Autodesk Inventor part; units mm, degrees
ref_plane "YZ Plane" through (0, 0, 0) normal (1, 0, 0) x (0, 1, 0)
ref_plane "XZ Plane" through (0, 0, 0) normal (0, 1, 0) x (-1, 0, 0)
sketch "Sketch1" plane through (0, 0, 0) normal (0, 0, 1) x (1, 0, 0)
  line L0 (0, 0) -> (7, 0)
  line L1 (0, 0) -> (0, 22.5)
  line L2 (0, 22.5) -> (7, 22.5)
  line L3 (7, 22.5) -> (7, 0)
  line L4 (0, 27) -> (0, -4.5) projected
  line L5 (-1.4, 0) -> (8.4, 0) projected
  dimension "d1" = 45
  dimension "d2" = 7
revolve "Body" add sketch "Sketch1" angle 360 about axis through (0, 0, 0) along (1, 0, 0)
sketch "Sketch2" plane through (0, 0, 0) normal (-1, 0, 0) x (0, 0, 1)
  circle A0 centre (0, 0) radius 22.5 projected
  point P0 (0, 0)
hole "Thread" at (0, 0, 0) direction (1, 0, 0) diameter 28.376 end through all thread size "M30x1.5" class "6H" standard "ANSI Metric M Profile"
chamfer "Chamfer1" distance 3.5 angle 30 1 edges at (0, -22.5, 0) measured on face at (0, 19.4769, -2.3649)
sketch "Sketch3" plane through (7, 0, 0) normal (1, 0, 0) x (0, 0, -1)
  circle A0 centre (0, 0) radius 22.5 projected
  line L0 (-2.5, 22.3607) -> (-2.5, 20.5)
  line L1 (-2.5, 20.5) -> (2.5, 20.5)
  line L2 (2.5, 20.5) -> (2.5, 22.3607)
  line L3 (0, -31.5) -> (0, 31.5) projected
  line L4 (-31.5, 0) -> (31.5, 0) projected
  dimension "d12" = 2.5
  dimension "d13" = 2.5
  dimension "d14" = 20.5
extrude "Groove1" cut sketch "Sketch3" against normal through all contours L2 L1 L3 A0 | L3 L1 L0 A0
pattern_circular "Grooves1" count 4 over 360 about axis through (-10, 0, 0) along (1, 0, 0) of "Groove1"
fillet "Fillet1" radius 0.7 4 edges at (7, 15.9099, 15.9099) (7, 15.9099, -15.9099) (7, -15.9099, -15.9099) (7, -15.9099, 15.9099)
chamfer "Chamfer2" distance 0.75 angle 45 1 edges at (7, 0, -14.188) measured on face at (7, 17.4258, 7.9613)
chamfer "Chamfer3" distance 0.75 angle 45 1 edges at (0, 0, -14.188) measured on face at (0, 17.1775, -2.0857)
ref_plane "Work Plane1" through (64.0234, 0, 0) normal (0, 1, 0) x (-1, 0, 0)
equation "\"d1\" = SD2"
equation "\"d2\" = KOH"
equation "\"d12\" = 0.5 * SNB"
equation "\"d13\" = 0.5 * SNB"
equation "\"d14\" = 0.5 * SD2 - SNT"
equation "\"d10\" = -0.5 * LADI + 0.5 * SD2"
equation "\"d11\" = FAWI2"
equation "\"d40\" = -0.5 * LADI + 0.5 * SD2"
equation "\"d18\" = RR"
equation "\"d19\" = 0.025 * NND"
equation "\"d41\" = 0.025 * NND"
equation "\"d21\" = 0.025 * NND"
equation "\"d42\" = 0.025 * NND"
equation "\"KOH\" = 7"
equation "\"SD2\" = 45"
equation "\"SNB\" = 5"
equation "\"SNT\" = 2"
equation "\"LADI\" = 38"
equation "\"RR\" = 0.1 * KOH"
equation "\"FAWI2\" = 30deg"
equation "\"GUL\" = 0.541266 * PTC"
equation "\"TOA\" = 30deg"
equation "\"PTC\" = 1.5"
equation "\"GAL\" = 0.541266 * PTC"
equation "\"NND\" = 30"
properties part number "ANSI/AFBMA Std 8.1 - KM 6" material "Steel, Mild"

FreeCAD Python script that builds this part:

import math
import FreeCAD as App
import Part
import Sketcher
Q = App.Units.Quantity


def edges_at(feature, points):
    """Names of the edges that pass closest to the given points."""
    edges = feature.Shape.Edges
    near = lambda p: min(range(len(edges)), key=lambda i: edges[i].distToShape(Part.Vertex(*p))[0])
    return sorted({f"Edge{near(p) + 1}" for p in points})

doc = App.newDocument("Part")
body = doc.addObject("PartDesign::Body", "Body")

# Sketch on XY plane
sketch1 = body.newObject("Sketcher::SketchObject", "Sketch")
sketch1.AttachmentSupport = (doc.getObject("XY_Plane"), [""])
sketch1.MapMode = "FlatFace"
sketch1.addGeometry(Part.LineSegment(App.Vector(0, 22.5, 0), App.Vector(0, 0, 0)), False)
sketch1.addGeometry(Part.LineSegment(App.Vector(0, 0, 0), App.Vector(7, 0, 0)), False)
sketch1.addGeometry(Part.LineSegment(App.Vector(7, 0, 0), App.Vector(7, 22.5, 0)), False)
sketch1.addGeometry(Part.LineSegment(App.Vector(7, 22.5, 0), App.Vector(0, 22.5, 0)), False)
sketch1.addConstraint(Sketcher.Constraint("Coincident", 0, 2, 1, 1))
sketch1.addConstraint(Sketcher.Constraint("Coincident", 1, 2, 2, 1))
sketch1.addConstraint(Sketcher.Constraint("Coincident", 2, 2, 3, 1))
sketch1.addConstraint(Sketcher.Constraint("Coincident", 3, 2, 0, 1))
sketch1.addConstraint(Sketcher.Constraint("Vertical", 0))
sketch1.addConstraint(Sketcher.Constraint("Horizontal", 1))
sketch1.addConstraint(Sketcher.Constraint("Vertical", 2))
sketch1.addConstraint(Sketcher.Constraint("Horizontal", 3))
sketch1.addConstraint(Sketcher.Constraint("Coincident", 0, 2, -1, 1))
sketch1.addConstraint(Sketcher.Constraint("DistanceX", 1, 1, 1, 2, Q("7 mm")))
sketch1.addConstraint(Sketcher.Constraint("DistanceY", 0, 2, 0, 1, Q("22.5 mm")))
revolution = body.newObject("PartDesign::Revolution", "Revolution")
revolution.Profile = sketch1
revolution.ReferenceAxis = (sketch1, ["H_Axis"])
revolution.Angle = 360

# Sketch on YZ plane
sketch2 = body.newObject("Sketcher::SketchObject", "Sketch001")
sketch2.AttachmentSupport = (doc.getObject("YZ_Plane"), [""])
sketch2.MapMode = "FlatFace"
sketch2.addGeometry(Part.Circle(App.Vector(0, 0, 0), App.Vector(0, 0, 1), 14.188), False)
sketch2.addConstraint(Sketcher.Constraint("Coincident", 0, 3, -1, 1))
sketch2.addConstraint(Sketcher.Constraint("Diameter", 0, Q("28.376 mm")))
doc.recompute()
hole = body.newObject("PartDesign::Hole", "Hole")
hole.Profile = sketch2
hole.ThreadType = "None"
hole.Diameter = 28.376
hole.DepthType = "ThroughAll"
hole.Reversed = True
doc.recompute()

chamfer = body.newObject("PartDesign::Chamfer", "Chamfer")
chamfer.Base = (hole, edges_at(hole, [(0, -22.5, 0)]))
chamfer.ChamferType = "Distance and Angle"
chamfer.Size = 3.5
chamfer.Angle = 30

# Sketch on YZ plane
sketch3 = body.newObject("Sketcher::SketchObject", "Sketch002")
sketch3.AttachmentSupport = (doc.getObject("YZ_Plane"), [""])
sketch3.MapMode = "FlatFace"
sketch3.AttachmentOffset = App.Placement(App.Vector(0, 0, 7), App.Rotation())
sketch3.addGeometry(Part.LineSegment(App.Vector(20.5, -2.5, 0), App.Vector(22.3607, -2.5, 0)), False)
sketch3.addGeometry(Part.ArcOfCircle(Part.Circle(App.Vector(0, 0, 0), App.Vector(0, 0, 1), 22.5), math.radians(-6.379364), math.radians(6.379364)), False)
sketch3.addGeometry(Part.LineSegment(App.Vector(22.3607, 2.5, 0), App.Vector(20.5, 2.5, 0)), False)
sketch3.addGeometry(Part.LineSegment(App.Vector(20.5, 2.5, 0), App.Vector(20.5, -2.5, 0)), False)
sketch3.addConstraint(Sketcher.Constraint("Coincident", 0, 2, 1, 1))
sketch3.addConstraint(Sketcher.Constraint("Coincident", 1, 2, 2, 1))
sketch3.addConstraint(Sketcher.Constraint("Coincident", 2, 2, 3, 1))
sketch3.addConstraint(Sketcher.Constraint("Coincident", 3, 2, 0, 1))
sketch3.addConstraint(Sketcher.Constraint("Horizontal", 0))
sketch3.addConstraint(Sketcher.Constraint("Horizontal", 2))
sketch3.addConstraint(Sketcher.Constraint("Vertical", 3))
sketch3.addConstraint(Sketcher.Constraint("Coincident", 1, 3, -1, 1))
sketch3.addConstraint(Sketcher.Constraint("Vertical", 0, 2, 1, 2))
sketch3.addConstraint(Sketcher.Constraint("DistanceY", 0, 2, -1, 1, Q("2.5 mm")))
sketch3.addConstraint(Sketcher.Constraint("DistanceX", -1, 1, 2, 2, Q("20.5 mm")))
sketch3.addConstraint(Sketcher.Constraint("Radius", 1, Q("22.5 mm")))
pocket1 = body.newObject("PartDesign::Pocket", "Pocket")
pocket1.Profile = sketch3
pocket1.Type = "ThroughAll"
doc.recompute()

polarpattern = body.newObject("PartDesign::PolarPattern", "PolarPattern")
polarpattern.Originals = [pocket1]
polarpattern.Axis = (doc.getObject("X_Axis"), [""])
polarpattern.Angle = 360
polarpattern.Occurrences = 4
body.Tip = polarpattern
doc.recompute()

fillet = body.newObject("PartDesign::Fillet", "Fillet")
fillet.Base = (polarpattern, edges_at(polarpattern, [
    (7, 15.91, 15.91),
    (7, 15.91, -15.91),
    (7, -15.91, -15.91),
    (7, -15.91, 15.91),
]))
fillet.Radius = 0.7
doc.recompute()

chamfer2 = body.newObject("PartDesign::Chamfer", "Chamfer001")
chamfer2.Base = (fillet, edges_at(fillet, [(7, 0, -14.188)]))
chamfer2.Size = 0.75
doc.recompute()

chamfer3 = body.newObject("PartDesign::Chamfer", "Chamfer002")
chamfer3.Base = (chamfer2, edges_at(chamfer2, [(0, 0, -14.188)]))
chamfer3.Size = 0.75

doc.recompute()
